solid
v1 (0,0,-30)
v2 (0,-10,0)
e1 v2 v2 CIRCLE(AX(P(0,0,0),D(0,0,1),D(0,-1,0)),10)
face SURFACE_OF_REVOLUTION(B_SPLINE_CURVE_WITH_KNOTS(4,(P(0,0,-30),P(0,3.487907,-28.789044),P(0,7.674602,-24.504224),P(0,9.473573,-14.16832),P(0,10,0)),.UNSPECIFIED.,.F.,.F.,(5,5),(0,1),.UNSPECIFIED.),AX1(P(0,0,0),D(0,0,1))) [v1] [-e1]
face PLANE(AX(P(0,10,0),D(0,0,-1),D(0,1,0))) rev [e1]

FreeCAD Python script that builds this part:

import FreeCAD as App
import Part
import Sketcher

V = App.Vector

doc = App.newDocument("Part")
body = doc.addObject("PartDesign::Body", "Body")

sketch1 = doc.addObject("Sketcher::SketchObject", "Sketch")
body.addObject(sketch1)
sketch1.AttachmentSupport = (doc.YZ_Plane, [""])
sketch1.MapMode = "FlatFace"
sketch1.addGeometry([
    Part.LineSegment(V(10, 0, 0), V(0, 0, 0)),
    Part.LineSegment(V(0, 0, 0), V(0, -30, 0)),
    Part.BSplineCurve([V(10, 0, 0), V(9.473573, -14.16832, 0), V(7.674602, -24.504224, 0), V(3.487907, -28.789044, 0), V(0, -30, 0)], [5, 5], [0, 1], False, 4, [1, 1, 1, 1, 1], False),
], False)
sketch1.addConstraint([
    Sketcher.Constraint("Block", 2),
    Sketcher.Constraint("Coincident", 0, 2, 1, 1),
    Sketcher.Constraint("Coincident", 1, 2, 2, 2),
    Sketcher.Constraint("Coincident", 2, 1, 0, 1),
    Sketcher.Constraint("Horizontal", 0),
    Sketcher.Constraint("Vertical", 1),
])
revolution = doc.addObject("PartDesign::Revolution", "Revolution")
body.addObject(revolution)
revolution.Profile = sketch1
revolution.ReferenceAxis = (sketch1, ["V_Axis"])
revolution.Angle = 360

doc.recompute()
